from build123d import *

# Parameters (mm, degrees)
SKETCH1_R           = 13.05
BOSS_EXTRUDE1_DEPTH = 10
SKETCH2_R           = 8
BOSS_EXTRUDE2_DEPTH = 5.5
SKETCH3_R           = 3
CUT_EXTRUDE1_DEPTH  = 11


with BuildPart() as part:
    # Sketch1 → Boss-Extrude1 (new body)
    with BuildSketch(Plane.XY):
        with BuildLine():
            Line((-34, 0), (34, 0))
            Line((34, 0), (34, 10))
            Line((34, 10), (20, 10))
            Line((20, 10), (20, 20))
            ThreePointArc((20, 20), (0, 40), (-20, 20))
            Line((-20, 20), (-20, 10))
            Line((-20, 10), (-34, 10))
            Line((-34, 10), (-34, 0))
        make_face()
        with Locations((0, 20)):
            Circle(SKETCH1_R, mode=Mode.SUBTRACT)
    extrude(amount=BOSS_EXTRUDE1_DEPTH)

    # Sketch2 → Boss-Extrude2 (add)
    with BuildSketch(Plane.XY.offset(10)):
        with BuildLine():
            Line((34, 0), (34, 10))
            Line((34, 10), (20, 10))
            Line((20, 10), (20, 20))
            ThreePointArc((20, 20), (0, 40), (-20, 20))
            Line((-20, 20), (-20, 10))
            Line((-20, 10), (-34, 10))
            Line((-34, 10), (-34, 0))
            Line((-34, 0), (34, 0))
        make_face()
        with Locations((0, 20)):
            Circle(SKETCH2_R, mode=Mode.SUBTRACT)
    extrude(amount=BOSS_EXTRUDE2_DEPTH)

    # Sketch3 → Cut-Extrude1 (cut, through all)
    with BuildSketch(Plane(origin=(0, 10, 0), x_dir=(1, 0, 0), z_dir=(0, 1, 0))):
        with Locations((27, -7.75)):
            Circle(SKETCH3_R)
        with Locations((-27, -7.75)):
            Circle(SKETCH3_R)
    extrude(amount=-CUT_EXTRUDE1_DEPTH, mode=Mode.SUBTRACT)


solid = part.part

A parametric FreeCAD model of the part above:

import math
import FreeCAD as App
import Part
import Sketcher
Q = App.Units.Quantity

doc = App.newDocument("Part")
body = doc.addObject("PartDesign::Body", "Body")

# Sketch on XY plane
sketch1 = doc.addObject("Sketcher::SketchObject", "Sketch")
body.addObject(sketch1)
sketch1.AttachmentSupport = (doc.XY_Plane, [""])
sketch1.MapMode = "FlatFace"
sketch1.addGeometry(Part.LineSegment(App.Vector(-34, 0, 0), App.Vector(34, 0, 0)), False)
sketch1.addGeometry(Part.LineSegment(App.Vector(34, 0, 0), App.Vector(34, 10, 0)), False)
sketch1.addGeometry(Part.LineSegment(App.Vector(34, 10, 0), App.Vector(20, 10, 0)), False)
sketch1.addGeometry(Part.LineSegment(App.Vector(20, 10, 0), App.Vector(20, 20, 0)), False)
sketch1.addGeometry(Part.ArcOfCircle(Part.Circle(App.Vector(0, 20, 0), App.Vector(0, 0, 1), 20), math.radians(0), math.radians(180)), False)
sketch1.addGeometry(Part.LineSegment(App.Vector(-20, 20, 0), App.Vector(-20, 10, 0)), False)
sketch1.addGeometry(Part.LineSegment(App.Vector(-20, 10, 0), App.Vector(-34, 10, 0)), False)
sketch1.addGeometry(Part.LineSegment(App.Vector(-34, 10, 0), App.Vector(-34, 0, 0)), False)
sketch1.addGeometry(Part.Circle(App.Vector(0, 20, 0), App.Vector(0, 0, 1), 13), False)
sketch1.addConstraint(Sketcher.Constraint("Coincident", 0, 2, 1, 1))
sketch1.addConstraint(Sketcher.Constraint("Coincident", 1, 2, 2, 1))
sketch1.addConstraint(Sketcher.Constraint("Coincident", 2, 2, 3, 1))
sketch1.addConstraint(Sketcher.Constraint("Tangent", 3, 2, 4, 1))
sketch1.addConstraint(Sketcher.Constraint("Tangent", 4, 2, 5, 1))
sketch1.addConstraint(Sketcher.Constraint("Coincident", 5, 2, 6, 1))
sketch1.addConstraint(Sketcher.Constraint("Coincident", 6, 2, 7, 1))
sketch1.addConstraint(Sketcher.Constraint("Coincident", 7, 2, 0, 1))
sketch1.addConstraint(Sketcher.Constraint("Horizontal", 0))
sketch1.addConstraint(Sketcher.Constraint("Vertical", 1))
sketch1.addConstraint(Sketcher.Constraint("Horizontal", 2))
sketch1.addConstraint(Sketcher.Constraint("Vertical", 3))
sketch1.addConstraint(Sketcher.Constraint("Vertical", 5))
sketch1.addConstraint(Sketcher.Constraint("Horizontal", 6))
sketch1.addConstraint(Sketcher.Constraint("Vertical", 7))
sketch1.addConstraint(Sketcher.Constraint("Coincident", 8, 3, 4, 3))
sketch1.addConstraint(Sketcher.Constraint("Symmetric", 0, 2, 7, 2, -1, 1))
sketch1.addConstraint(Sketcher.Constraint("Symmetric", 2, 2, 5, 2, -2))
sketch1.addConstraint(Sketcher.Constraint("Equal", 1, 3))
sketch1.addConstraint(Sketcher.Constraint("Radius", 4, Q("20 mm")))
sketch1.addConstraint(Sketcher.Constraint("Diameter", 8, Q("26.1 mm")))
sketch1.addConstraint(Sketcher.Constraint("DistanceX", 0, 1, 0, 2, Q("68 mm")))
sketch1.addConstraint(Sketcher.Constraint("DistanceY", 1, 1, 1, 2, Q("10 mm")))
pad1 = doc.addObject("PartDesign::Pad", "Pad")
body.addObject(pad1)
pad1.Profile = sketch1
pad1.Length = 10

# Sketch on XY plane
sketch2 = doc.addObject("Sketcher::SketchObject", "Sketch001")
body.addObject(sketch2)
sketch2.AttachmentSupport = (doc.XY_Plane, [""])
sketch2.MapMode = "FlatFace"
sketch2.AttachmentOffset = App.Placement(App.Vector(0, 0, 10), App.Rotation())
sketch2.addGeometry(Part.LineSegment(App.Vector(34, 0, 0), App.Vector(34, 10, 0)), False)
sketch2.addGeometry(Part.LineSegment(App.Vector(34, 10, 0), App.Vector(20, 10, 0)), False)
sketch2.addGeometry(Part.LineSegment(App.Vector(20, 10, 0), App.Vector(20, 20, 0)), False)
sketch2.addGeometry(Part.ArcOfCircle(Part.Circle(App.Vector(0, 20, 0), App.Vector(0, 0, 1), 20), math.radians(0), math.radians(180)), False)
sketch2.addGeometry(Part.LineSegment(App.Vector(-20, 20, 0), App.Vector(-20, 10, 0)), False)
sketch2.addGeometry(Part.LineSegment(App.Vector(-20, 10, 0), App.Vector(-34, 10, 0)), False)
sketch2.addGeometry(Part.LineSegment(App.Vector(-34, 10, 0), App.Vector(-34, 0, 0)), False)
sketch2.addGeometry(Part.LineSegment(App.Vector(-34, 0, 0), App.Vector(34, 0, 0)), False)
sketch2.addGeometry(Part.Circle(App.Vector(0, 20, 0), App.Vector(0, 0, 1), 8), False)
sketch2.addConstraint(Sketcher.Constraint("Coincident", 0, 2, 1, 1))
sketch2.addConstraint(Sketcher.Constraint("Coincident", 1, 2, 2, 1))
sketch2.addConstraint(Sketcher.Constraint("Tangent", 2, 2, 3, 1))
sketch2.addConstraint(Sketcher.Constraint("Tangent", 3, 2, 4, 1))
sketch2.addConstraint(Sketcher.Constraint("Coincident", 4, 2, 5, 1))
sketch2.addConstraint(Sketcher.Constraint("Coincident", 5, 2, 6, 1))
sketch2.addConstraint(Sketcher.Constraint("Coincident", 6, 2, 7, 1))
sketch2.addConstraint(Sketcher.Constraint("Coincident", 7, 2, 0, 1))
sketch2.addConstraint(Sketcher.Constraint("Vertical", 0))
sketch2.addConstraint(Sketcher.Constraint("Horizontal", 1))
sketch2.addConstraint(Sketcher.Constraint("Vertical", 2))
sketch2.addConstraint(Sketcher.Constraint("Vertical", 4))
sketch2.addConstraint(Sketcher.Constraint("Horizontal", 5))
sketch2.addConstraint(Sketcher.Constraint("Vertical", 6))
sketch2.addConstraint(Sketcher.Constraint("Horizontal", 7))
sketch2.addConstraint(Sketcher.Constraint("Coincident", 8, 3, 3, 3))
sketch2.addConstraint(Sketcher.Constraint("Symmetric", 6, 2, 7, 2, -1, 1))
sketch2.addConstraint(Sketcher.Constraint("Symmetric", 1, 2, 4, 2, -2))
sketch2.addConstraint(Sketcher.Constraint("Equal", 0, 2))
sketch2.addConstraint(Sketcher.Constraint("Diameter", 8, Q("16 mm")))
sketch2.addConstraint(Sketcher.Constraint("Radius", 3, Q("20 mm")))
sketch2.addConstraint(Sketcher.Constraint("DistanceX", 1, 2, 1, 1, Q("14 mm")))
sketch2.addConstraint(Sketcher.Constraint("DistanceY", 0, 1, 0, 2, Q("10 mm")))
pad2 = doc.addObject("PartDesign::Pad", "Pad001")
body.addObject(pad2)
pad2.Profile = sketch2
pad2.Length = 5.5

# Sketch on XZ plane
sketch3 = doc.addObject("Sketcher::SketchObject", "Sketch002")
body.addObject(sketch3)
sketch3.AttachmentSupport = (doc.XZ_Plane, [""])
sketch3.MapMode = "FlatFace"
sketch3.AttachmentOffset = App.Placement(App.Vector(0, 0, -10), App.Rotation())
sketch3.addGeometry(Part.Circle(App.Vector(27, 7.8, 0), App.Vector(0, 0, 1), 3), False)
sketch3.addGeometry(Part.Circle(App.Vector(-27, 7.8, 0), App.Vector(0, 0, 1), 3), False)
sketch3.addConstraint(Sketcher.Constraint("Equal", 0, 1))
sketch3.addConstraint(Sketcher.Constraint("Symmetric", 0, 3, 1, 3, -2))
sketch3.addConstraint(Sketcher.Constraint("Diameter", 0, Q("6 mm")))
sketch3.addConstraint(Sketcher.Constraint("DistanceX", -1, 1, 0, 3, Q("27 mm")))
sketch3.addConstraint(Sketcher.Constraint("DistanceY", -1, 1, 0, 3, Q("7.75 mm")))
pocket1 = doc.addObject("PartDesign::Pocket", "Pocket")
body.addObject(pocket1)
pocket1.Profile = sketch3
pocket1.Type = "ThroughAll"
pocket1.Reversed = True

doc.recompute()
